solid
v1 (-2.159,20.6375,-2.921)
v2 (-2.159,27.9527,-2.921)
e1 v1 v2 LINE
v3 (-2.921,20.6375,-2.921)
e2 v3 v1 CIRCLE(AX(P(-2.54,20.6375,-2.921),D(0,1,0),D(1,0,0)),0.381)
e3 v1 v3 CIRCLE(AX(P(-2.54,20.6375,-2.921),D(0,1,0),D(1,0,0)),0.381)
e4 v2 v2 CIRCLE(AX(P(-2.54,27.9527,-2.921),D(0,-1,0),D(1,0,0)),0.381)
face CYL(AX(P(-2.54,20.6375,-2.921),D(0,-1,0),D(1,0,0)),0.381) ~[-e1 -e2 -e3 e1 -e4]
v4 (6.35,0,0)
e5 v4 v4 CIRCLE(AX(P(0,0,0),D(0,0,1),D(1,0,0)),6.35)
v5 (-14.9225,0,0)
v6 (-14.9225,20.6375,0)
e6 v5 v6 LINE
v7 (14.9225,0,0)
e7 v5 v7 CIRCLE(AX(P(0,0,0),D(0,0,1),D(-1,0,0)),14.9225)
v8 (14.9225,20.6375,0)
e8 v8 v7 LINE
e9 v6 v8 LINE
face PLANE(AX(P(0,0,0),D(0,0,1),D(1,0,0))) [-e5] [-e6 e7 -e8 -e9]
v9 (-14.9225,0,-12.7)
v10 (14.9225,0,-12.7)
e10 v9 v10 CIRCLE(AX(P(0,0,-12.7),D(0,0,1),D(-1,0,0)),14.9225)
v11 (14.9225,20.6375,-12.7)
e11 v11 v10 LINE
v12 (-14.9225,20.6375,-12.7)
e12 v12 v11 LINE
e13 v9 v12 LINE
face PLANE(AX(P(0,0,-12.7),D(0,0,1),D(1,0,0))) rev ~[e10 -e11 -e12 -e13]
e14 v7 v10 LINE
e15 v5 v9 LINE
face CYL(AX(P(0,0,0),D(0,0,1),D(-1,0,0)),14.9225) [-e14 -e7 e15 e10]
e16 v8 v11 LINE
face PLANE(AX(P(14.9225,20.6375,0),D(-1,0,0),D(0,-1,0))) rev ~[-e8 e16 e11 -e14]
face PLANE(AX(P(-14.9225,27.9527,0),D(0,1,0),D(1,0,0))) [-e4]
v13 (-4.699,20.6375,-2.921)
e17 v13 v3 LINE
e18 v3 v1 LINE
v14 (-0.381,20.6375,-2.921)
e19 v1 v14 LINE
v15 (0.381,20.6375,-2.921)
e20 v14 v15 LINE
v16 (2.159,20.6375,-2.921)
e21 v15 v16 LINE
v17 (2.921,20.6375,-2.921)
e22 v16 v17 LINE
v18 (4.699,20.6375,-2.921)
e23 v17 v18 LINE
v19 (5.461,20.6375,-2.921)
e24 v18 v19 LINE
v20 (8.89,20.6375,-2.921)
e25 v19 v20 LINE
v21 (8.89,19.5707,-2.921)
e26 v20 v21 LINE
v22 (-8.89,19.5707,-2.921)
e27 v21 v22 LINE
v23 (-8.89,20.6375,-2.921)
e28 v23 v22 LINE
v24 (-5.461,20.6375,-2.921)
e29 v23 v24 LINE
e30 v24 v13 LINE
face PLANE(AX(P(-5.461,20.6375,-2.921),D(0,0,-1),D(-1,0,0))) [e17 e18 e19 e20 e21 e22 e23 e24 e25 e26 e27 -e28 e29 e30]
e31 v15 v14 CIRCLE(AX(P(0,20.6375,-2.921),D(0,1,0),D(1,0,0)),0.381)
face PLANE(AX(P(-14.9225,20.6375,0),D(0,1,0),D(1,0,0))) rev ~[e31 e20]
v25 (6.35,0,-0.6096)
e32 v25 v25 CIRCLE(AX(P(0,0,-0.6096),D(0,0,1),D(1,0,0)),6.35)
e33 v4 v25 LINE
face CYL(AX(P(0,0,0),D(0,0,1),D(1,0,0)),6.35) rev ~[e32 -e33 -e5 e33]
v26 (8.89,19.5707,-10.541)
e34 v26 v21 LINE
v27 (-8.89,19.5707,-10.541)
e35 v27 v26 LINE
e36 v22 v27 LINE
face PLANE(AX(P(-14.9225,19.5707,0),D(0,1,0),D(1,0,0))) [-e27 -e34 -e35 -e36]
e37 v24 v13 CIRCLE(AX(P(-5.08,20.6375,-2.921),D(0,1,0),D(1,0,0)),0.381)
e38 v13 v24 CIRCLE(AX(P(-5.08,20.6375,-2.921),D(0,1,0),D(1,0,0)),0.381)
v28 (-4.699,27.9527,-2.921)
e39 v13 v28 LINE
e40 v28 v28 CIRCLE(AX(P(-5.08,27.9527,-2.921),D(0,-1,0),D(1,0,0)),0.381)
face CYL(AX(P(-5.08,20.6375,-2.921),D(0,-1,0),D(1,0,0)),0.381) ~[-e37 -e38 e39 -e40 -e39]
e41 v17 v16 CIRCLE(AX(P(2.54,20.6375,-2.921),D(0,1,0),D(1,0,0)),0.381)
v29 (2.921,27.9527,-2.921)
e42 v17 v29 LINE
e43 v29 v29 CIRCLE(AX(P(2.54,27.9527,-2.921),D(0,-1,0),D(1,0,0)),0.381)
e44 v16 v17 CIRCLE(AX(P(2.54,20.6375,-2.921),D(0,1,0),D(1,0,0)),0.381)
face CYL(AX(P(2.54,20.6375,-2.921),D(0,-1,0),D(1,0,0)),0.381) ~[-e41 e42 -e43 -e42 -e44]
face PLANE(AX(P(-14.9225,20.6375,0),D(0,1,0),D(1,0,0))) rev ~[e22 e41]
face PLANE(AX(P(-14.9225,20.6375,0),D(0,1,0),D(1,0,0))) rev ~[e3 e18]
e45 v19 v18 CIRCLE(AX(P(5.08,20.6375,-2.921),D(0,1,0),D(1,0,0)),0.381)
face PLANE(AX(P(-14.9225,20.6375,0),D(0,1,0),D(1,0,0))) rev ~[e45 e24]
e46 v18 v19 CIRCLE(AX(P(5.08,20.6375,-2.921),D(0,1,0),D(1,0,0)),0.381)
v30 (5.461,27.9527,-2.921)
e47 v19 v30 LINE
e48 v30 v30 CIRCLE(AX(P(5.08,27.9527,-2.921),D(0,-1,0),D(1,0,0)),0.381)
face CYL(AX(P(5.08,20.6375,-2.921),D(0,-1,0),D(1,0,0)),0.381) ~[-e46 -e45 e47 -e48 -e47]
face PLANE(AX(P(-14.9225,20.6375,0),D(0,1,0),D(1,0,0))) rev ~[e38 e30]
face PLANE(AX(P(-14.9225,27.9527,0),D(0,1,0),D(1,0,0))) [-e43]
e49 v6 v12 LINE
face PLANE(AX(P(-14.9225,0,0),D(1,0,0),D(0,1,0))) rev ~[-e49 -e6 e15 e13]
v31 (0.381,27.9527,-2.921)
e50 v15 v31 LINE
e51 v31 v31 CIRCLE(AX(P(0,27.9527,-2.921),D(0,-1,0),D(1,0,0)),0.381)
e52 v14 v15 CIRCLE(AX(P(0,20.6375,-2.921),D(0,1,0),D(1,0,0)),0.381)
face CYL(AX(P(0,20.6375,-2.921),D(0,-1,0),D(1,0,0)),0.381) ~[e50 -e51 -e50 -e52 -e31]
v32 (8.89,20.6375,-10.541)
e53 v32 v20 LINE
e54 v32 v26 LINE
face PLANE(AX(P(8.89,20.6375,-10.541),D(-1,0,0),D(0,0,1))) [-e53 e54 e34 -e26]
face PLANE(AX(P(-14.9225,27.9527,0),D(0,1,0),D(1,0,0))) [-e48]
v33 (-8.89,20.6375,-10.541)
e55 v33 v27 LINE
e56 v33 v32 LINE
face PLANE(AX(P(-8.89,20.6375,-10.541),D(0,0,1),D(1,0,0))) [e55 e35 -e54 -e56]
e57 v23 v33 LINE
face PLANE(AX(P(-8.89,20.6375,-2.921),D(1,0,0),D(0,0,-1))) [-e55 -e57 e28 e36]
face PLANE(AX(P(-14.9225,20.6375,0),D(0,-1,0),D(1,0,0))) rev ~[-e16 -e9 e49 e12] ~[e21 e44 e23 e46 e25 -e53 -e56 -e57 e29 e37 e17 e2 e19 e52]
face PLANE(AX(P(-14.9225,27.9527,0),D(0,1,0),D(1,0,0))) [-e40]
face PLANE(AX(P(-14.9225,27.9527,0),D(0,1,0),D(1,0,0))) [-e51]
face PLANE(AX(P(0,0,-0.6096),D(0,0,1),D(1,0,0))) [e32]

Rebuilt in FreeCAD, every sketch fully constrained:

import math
import FreeCAD as App
import Part
import Sketcher
from FreeCAD import Vector
Q = App.Units.Quantity

doc = App.newDocument("Part")
params = doc.addObject("Spreadsheet::Sheet", "Params")
for row, (alias, value) in enumerate([
    ("sketch1_height", "0.8125 in"),
    ("pad1_length", "0.5 in"),
    ("sketch2_diameter", "0.5 in"),
    ("pocket1_length", "0.024 in"),
    ("sketch3_width", "0.7 in"),
    ("sketch3_height", "0.3 in"),
    ("pocket2_length", "0.042 in"),
    ("sketch4_diameter", "0.03 in"),
    ("pad2_length", "0.288 in"),
], start=1):
    params.set(f"A{row}", alias)
    params.set(f"B{row}", "=" + value)
    params.setAlias(f"B{row}", alias)

body = doc.addObject("PartDesign::Body", "Body")

sketch1 = body.newObject("Sketcher::SketchObject", "Sketch")
sketch1.AttachmentSupport = (doc.getObject("XY_Plane"), [""])
sketch1.MapMode = "FlatFace"
sketch1.addGeometry([
    Part.LineSegment(Vector(-15, 21, 0), Vector(-15, 0, 0)),
    Part.ArcOfCircle(Part.Circle(Vector(0, 0, 0), Vector(0, 0, 1), 15), math.radians(180), math.radians(360)),
    Part.LineSegment(Vector(15, 0, 0), Vector(15, 21, 0)),
    Part.LineSegment(Vector(15, 21, 0), Vector(-15, 21, 0)),
], False)
sketch1.addConstraint([
    Sketcher.Constraint("Tangent", 0, 2, 1, 1),
    Sketcher.Constraint("Tangent", 1, 2, 2, 1),
    Sketcher.Constraint("Coincident", 2, 2, 3, 1),
    Sketcher.Constraint("Coincident", 3, 2, 0, 1),
    Sketcher.Constraint("Vertical", 0),
    Sketcher.Constraint("Vertical", 2),
    Sketcher.Constraint("Horizontal", 3),
    Sketcher.Constraint("Coincident", 1, 3, -1, 1),
    Sketcher.Constraint("Radius", 1, Q("0.5875 in")),
    Sketcher.Constraint("DistanceY", 0, 2, 0, 1, Q("0.8125 in")),
])
sketch1.setExpression("Constraints[9]", "Params.sketch1_height")
pad1 = body.newObject("PartDesign::Pad", "Pad")
pad1.Profile = sketch1
pad1.setExpression("Length", "Params.pad1_length")
pad1.Reversed = True

sketch2 = body.newObject("Sketcher::SketchObject", "Sketch001")
sketch2.AttachmentSupport = (doc.getObject("XY_Plane"), [""])
sketch2.MapMode = "FlatFace"
sketch2.addGeometry(Part.Circle(Vector(0, 0, 0), Vector(0, 0, 1), 6), False)
sketch2.addConstraint([
    Sketcher.Constraint("Coincident", 0, 3, -1, 1),
    Sketcher.Constraint("Diameter", 0, Q("0.5 in")),
])
sketch2.setExpression("Constraints[1]", "Params.sketch2_diameter")
pocket1 = body.newObject("PartDesign::Pocket", "Pocket")
pocket1.Profile = sketch2
pocket1.setExpression("Length", "Params.pocket1_length")

sketch3 = body.newObject("Sketcher::SketchObject", "Sketch002")
sketch3.AttachmentSupport = (doc.getObject("XZ_Plane"), [""])
sketch3.MapMode = "FlatFace"
sketch3.AttachmentOffset = App.Placement(Vector(0, 0, -0.8125 * 25.4), App.Rotation())
sketch3.addGeometry([
    Part.LineSegment(Vector(9, -11, 0), Vector(-9, -11, 0)),
    Part.LineSegment(Vector(-9, -11, 0), Vector(-9, -3, 0)),
    Part.LineSegment(Vector(-9, -3, 0), Vector(9, -3, 0)),
    Part.LineSegment(Vector(9, -3, 0), Vector(9, -11, 0)),
], False)
sketch3.addConstraint([
    Sketcher.Constraint("Coincident", 0, 2, 1, 1),
    Sketcher.Constraint("Coincident", 1, 2, 2, 1),
    Sketcher.Constraint("Coincident", 2, 2, 3, 1),
    Sketcher.Constraint("Coincident", 3, 2, 0, 1),
    Sketcher.Constraint("Horizontal", 0),
    Sketcher.Constraint("Vertical", 1),
    Sketcher.Constraint("Horizontal", 2),
    Sketcher.Constraint("Vertical", 3),
    Sketcher.Constraint("DistanceX", 0, 2, 0, 1, Q("0.7 in")),
    Sketcher.Constraint("DistanceY", 1, 1, 1, 2, Q("0.3 in")),
    Sketcher.Constraint("DistanceX", 0, 2, -1, 1, Q("0.35 in")),
    Sketcher.Constraint("DistanceY", 1, 2, -1, 1, Q("0.115 in")),
])
sketch3.setExpression("Constraints[8]", "Params.sketch3_width")
sketch3.setExpression("Constraints[9]", "Params.sketch3_height")
pocket2 = body.newObject("PartDesign::Pocket", "Pocket001")
pocket2.Profile = sketch3
pocket2.setExpression("Length", "Params.pocket2_length")
pocket2.Reversed = True

sketch4 = body.newObject("Sketcher::SketchObject", "Sketch003")
sketch4.AttachmentSupport = (doc.getObject("XZ_Plane"), [""])
sketch4.MapMode = "FlatFace"
sketch4.AttachmentOffset = App.Placement(Vector(0, 0, -0.8125 * 25.4), App.Rotation())
sketch4.addGeometry([
    Part.Circle(Vector(-5.08, -2.92, 0), Vector(0, 0, 1), 0.38),
    Part.Circle(Vector(5.08, -2.92, 0), Vector(0, 0, 1), 0.38),
    Part.Circle(Vector(-2.54, -2.92, 0), Vector(0, 0, 1), 0.38),
    Part.Circle(Vector(2.54, -2.92, 0), Vector(0, 0, 1), 0.38),
    Part.Circle(Vector(0, -2.92, 0), Vector(0, 0, 1), 0.38),
], False)
sketch4.addConstraint([
    Sketcher.Constraint("Equal", 0, 1),
    Sketcher.Constraint("Equal", 1, 2),
    Sketcher.Constraint("Equal", 2, 3),
    Sketcher.Constraint("Equal", 3, 4),
    Sketcher.Constraint("Symmetric", 0, 3, 1, 3, -2),
    Sketcher.Constraint("Symmetric", 2, 3, 3, 3, -2),
    Sketcher.Constraint("PointOnObject", 4, 3, -2),
    Sketcher.Constraint("Horizontal", 1, 3, 2, 3),
    Sketcher.Constraint("Horizontal", 3, 3, 4, 3),
    Sketcher.Constraint("Diameter", 0, Q("0.03 in")),
    Sketcher.Constraint("DistanceX", 2, 3, -1, 1, Q("0.1 in")),
    Sketcher.Constraint("DistanceX", 0, 3, 2, 3, Q("0.1 in")),
    Sketcher.Constraint("DistanceY", 0, 3, -1, 1, Q("0.115 in")),
])
sketch4.setExpression("Constraints[9]", "Params.sketch4_diameter")
pad2 = body.newObject("PartDesign::Pad", "Pad001")
pad2.Profile = sketch4
pad2.setExpression("Length", "Params.pad2_length")
pad2.Reversed = True

doc.recompute()
